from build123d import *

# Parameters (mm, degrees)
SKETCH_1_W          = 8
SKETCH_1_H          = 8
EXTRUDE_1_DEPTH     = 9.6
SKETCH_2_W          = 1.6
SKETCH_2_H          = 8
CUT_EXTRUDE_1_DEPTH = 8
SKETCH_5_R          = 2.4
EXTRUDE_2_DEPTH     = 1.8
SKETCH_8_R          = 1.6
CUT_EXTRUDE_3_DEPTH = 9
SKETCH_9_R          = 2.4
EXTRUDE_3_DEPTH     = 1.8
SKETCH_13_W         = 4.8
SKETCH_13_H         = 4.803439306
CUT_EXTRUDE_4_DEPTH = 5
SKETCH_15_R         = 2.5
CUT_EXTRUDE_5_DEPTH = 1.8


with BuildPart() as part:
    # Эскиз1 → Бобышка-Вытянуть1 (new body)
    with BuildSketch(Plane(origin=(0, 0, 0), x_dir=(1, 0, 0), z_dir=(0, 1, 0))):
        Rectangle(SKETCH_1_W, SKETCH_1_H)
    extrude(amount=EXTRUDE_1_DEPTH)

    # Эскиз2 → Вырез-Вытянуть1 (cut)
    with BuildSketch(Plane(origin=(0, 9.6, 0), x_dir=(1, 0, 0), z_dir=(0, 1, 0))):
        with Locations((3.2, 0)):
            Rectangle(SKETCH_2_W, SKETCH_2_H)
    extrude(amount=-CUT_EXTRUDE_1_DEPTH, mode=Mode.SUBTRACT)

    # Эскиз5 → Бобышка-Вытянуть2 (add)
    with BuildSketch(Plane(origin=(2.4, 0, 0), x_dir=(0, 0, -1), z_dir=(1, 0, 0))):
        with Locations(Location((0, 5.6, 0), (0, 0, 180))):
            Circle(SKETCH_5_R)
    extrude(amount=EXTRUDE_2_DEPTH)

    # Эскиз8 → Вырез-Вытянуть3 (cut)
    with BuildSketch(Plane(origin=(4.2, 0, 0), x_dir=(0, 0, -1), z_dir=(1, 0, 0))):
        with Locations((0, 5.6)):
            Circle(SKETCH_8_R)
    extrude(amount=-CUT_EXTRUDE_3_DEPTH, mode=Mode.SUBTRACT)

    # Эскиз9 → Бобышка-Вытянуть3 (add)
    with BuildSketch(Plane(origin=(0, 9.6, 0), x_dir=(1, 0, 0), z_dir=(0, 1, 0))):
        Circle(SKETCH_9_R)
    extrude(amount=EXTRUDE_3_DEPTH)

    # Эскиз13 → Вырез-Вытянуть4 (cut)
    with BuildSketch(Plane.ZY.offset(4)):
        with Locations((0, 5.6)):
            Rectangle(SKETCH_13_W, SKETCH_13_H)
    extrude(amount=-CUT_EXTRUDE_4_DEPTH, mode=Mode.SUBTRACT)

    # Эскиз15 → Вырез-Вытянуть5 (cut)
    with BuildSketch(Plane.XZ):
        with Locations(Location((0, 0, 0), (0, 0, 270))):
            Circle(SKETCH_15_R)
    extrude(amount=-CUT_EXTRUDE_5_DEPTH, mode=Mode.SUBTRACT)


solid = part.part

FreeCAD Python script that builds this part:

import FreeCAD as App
import Part
import Sketcher

V = App.Vector

doc = App.newDocument("Part")
params = doc.addObject("Spreadsheet::Sheet", "Params")
for row, (alias, value) in enumerate([
    ("sketch1_width", "8 mm"),
    ("pad1_length", "9.6 mm"),
    ("sketch2_height", "8 mm"),
    ("sketch2_width", "1.6 mm"),
    ("pocket1_length", "8 mm"),
    ("sketch3_diameter", "4.8 mm"),
    ("pad2_length", "1.8 mm"),
    ("sketch4_diameter", "3.2 mm"),
    ("pocket2_length", "9 mm"),
    ("sketch5_diameter", "4.8 mm"),
    ("pad3_length", "1.8 mm"),
    ("sketch6_height", "4.8 mm"),
    ("pocket3_length", "5 mm"),
    ("sketch7_diameter", "5 mm"),
    ("pocket4_length", "1.8 mm"),
], start=1):
    params.set(f"A{row}", alias)
    params.set(f"B{row}", "=" + value)
    params.setAlias(f"B{row}", alias)

body = doc.addObject("PartDesign::Body", "Body")

# Sketch on XZ plane
sketch1 = body.newObject("Sketcher::SketchObject", "Sketch")
sketch1.AttachmentSupport = (doc.getObject("XZ_Plane"), [""])
sketch1.MapMode = "FlatFace"
sketch1.addGeometry([
    Part.LineSegment(V(-4, -4, 0), V(-4, 4, 0)),
    Part.LineSegment(V(-4, 4, 0), V(4, 4, 0)),
    Part.LineSegment(V(4, 4, 0), V(4, -4, 0)),
    Part.LineSegment(V(4, -4, 0), V(-4, -4, 0)),
], False)
sketch1.addConstraint([
    Sketcher.Constraint("Coincident", 0, 2, 1, 1),
    Sketcher.Constraint("Coincident", 1, 2, 2, 1),
    Sketcher.Constraint("Coincident", 2, 2, 3, 1),
    Sketcher.Constraint("Coincident", 3, 2, 0, 1),
    Sketcher.Constraint("Vertical", 0),
    Sketcher.Constraint("Horizontal", 1),
    Sketcher.Constraint("Vertical", 2),
    Sketcher.Constraint("Horizontal", 3),
    Sketcher.Constraint("Symmetric", 0, 2, 2, 2, -1, 1),
    Sketcher.Constraint("Equal", 3, 0),
    Sketcher.Constraint("DistanceX", 1, 1, 1, 2, 8.0),
])
sketch1.setExpression("Constraints[10]", "Params.sketch1_width")
pad1 = body.newObject("PartDesign::Pad", "Pad")
pad1.Profile = sketch1
pad1.setExpression("Length", "Params.pad1_length")
pad1.Reversed = True

# Sketch on XZ plane
sketch2 = body.newObject("Sketcher::SketchObject", "Sketch001")
sketch2.AttachmentSupport = (doc.getObject("XZ_Plane"), [""])
sketch2.MapMode = "FlatFace"
sketch2.AttachmentOffset = App.Placement(V(0, 0, -9.6), App.Rotation())
sketch2.addGeometry([
    Part.LineSegment(V(2.4, -4, 0), V(2.4, 4, 0)),
    Part.LineSegment(V(2.4, 4, 0), V(4, 4, 0)),
    Part.LineSegment(V(4, 4, 0), V(4, -4, 0)),
    Part.LineSegment(V(4, -4, 0), V(2.4, -4, 0)),
], False)
sketch2.addConstraint([
    Sketcher.Constraint("Coincident", 0, 2, 1, 1),
    Sketcher.Constraint("Coincident", 1, 2, 2, 1),
    Sketcher.Constraint("Coincident", 2, 2, 3, 1),
    Sketcher.Constraint("Coincident", 3, 2, 0, 1),
    Sketcher.Constraint("Vertical", 0),
    Sketcher.Constraint("Horizontal", 1),
    Sketcher.Constraint("Vertical", 2),
    Sketcher.Constraint("Horizontal", 3),
    Sketcher.Constraint("DistanceY", 0, 1, 0, 2, 8.0),
    Sketcher.Constraint("DistanceX", 1, 1, 1, 2, 1.6),
    Sketcher.Constraint("DistanceY", -1, 1, 0, 2, 4.0),
    Sketcher.Constraint("DistanceX", -1, 1, 1, 2, 4.0),
])
sketch2.setExpression("Constraints[8]", "Params.sketch2_height")
sketch2.setExpression("Constraints[9]", "Params.sketch2_width")
pocket1 = body.newObject("PartDesign::Pocket", "Pocket")
pocket1.Profile = sketch2
pocket1.setExpression("Length", "Params.pocket1_length")
pocket1.Reversed = True

# Sketch on YZ plane
sketch3 = body.newObject("Sketcher::SketchObject", "Sketch002")
sketch3.AttachmentSupport = (doc.getObject("YZ_Plane"), [""])
sketch3.MapMode = "FlatFace"
sketch3.AttachmentOffset = App.Placement(V(0, 0, 2.4), App.Rotation())
sketch3.addGeometry(Part.Circle(V(5.6, 0, 0), V(0, 0, 1), 2.4), False)
sketch3.addConstraint([
    Sketcher.Constraint("PointOnObject", 0, 3, -1),
    Sketcher.Constraint("Diameter", 0, 4.8),
    Sketcher.Constraint("DistanceX", -1, 1, 0, 3, 5.6),
])
sketch3.setExpression("Constraints[1]", "Params.sketch3_diameter")
pad2 = body.newObject("PartDesign::Pad", "Pad001")
pad2.Profile = sketch3
pad2.setExpression("Length", "Params.pad2_length")

# Sketch on YZ plane
sketch4 = body.newObject("Sketcher::SketchObject", "Sketch003")
sketch4.AttachmentSupport = (doc.getObject("YZ_Plane"), [""])
sketch4.MapMode = "FlatFace"
sketch4.AttachmentOffset = App.Placement(V(0, 0, 4.2), App.Rotation())
sketch4.addGeometry(Part.Circle(V(5.6, 0, 0), V(0, 0, 1), 1.6), False)
sketch4.addConstraint([
    Sketcher.Constraint("PointOnObject", 0, 3, -1),
    Sketcher.Constraint("Diameter", 0, 3.2),
    Sketcher.Constraint("DistanceX", -1, 1, 0, 3, 5.6),
])
sketch4.setExpression("Constraints[1]", "Params.sketch4_diameter")
pocket2 = body.newObject("PartDesign::Pocket", "Pocket001")
pocket2.Profile = sketch4
pocket2.setExpression("Length", "Params.pocket2_length")

# Sketch on XZ plane
sketch5 = body.newObject("Sketcher::SketchObject", "Sketch004")
sketch5.AttachmentSupport = (doc.getObject("XZ_Plane"), [""])
sketch5.MapMode = "FlatFace"
sketch5.AttachmentOffset = App.Placement(V(0, 0, -9.6), App.Rotation())
sketch5.addGeometry(Part.Circle(V(0, 0, 0), V(0, 0, 1), 2.4), False)
sketch5.addConstraint([
    Sketcher.Constraint("Coincident", 0, 3, -1, 1),
    Sketcher.Constraint("Diameter", 0, 4.8),
])
sketch5.setExpression("Constraints[1]", "Params.sketch5_diameter")
pad3 = body.newObject("PartDesign::Pad", "Pad002")
pad3.Profile = sketch5
pad3.setExpression("Length", "Params.pad3_length")
pad3.Reversed = True

# Sketch on YZ plane
sketch6 = body.newObject("Sketcher::SketchObject", "Sketch005")
sketch6.AttachmentSupport = (doc.getObject("YZ_Plane"), [""])
sketch6.MapMode = "FlatFace"
sketch6.AttachmentOffset = App.Placement(V(0, 0, -4), App.Rotation())
sketch6.addGeometry([
    Part.LineSegment(V(8, -2.4, 0), V(3.2, -2.4, 0)),
    Part.LineSegment(V(3.2, -2.4, 0), V(3.2, 2.4, 0)),
    Part.LineSegment(V(3.2, 2.4, 0), V(8, 2.4, 0)),
    Part.LineSegment(V(8, 2.4, 0), V(8, -2.4, 0)),
], False)
sketch6.addConstraint([
    Sketcher.Constraint("Coincident", 0, 2, 1, 1),
    Sketcher.Constraint("Coincident", 1, 2, 2, 1),
    Sketcher.Constraint("Coincident", 2, 2, 3, 1),
    Sketcher.Constraint("Coincident", 3, 2, 0, 1),
    Sketcher.Constraint("Horizontal", 0),
    Sketcher.Constraint("Vertical", 1),
    Sketcher.Constraint("Horizontal", 2),
    Sketcher.Constraint("Vertical", 3),
    Sketcher.Constraint("DistanceY", 1, 1, 1, 2, 4.8),
    Sketcher.Constraint("DistanceY", 0, 2, -1, 1, 2.4),
    Sketcher.Constraint("DistanceX", 0, 2, 0, 1, 4.803439),
    Sketcher.Constraint("DistanceX", -1, 1, 0, 2, 3.19828),
])
sketch6.setExpression("Constraints[8]", "Params.sketch6_height")
pocket3 = body.newObject("PartDesign::Pocket", "Pocket002")
pocket3.Profile = sketch6
pocket3.setExpression("Length", "Params.pocket3_length")
pocket3.Reversed = True

# Sketch on XZ plane
sketch7 = body.newObject("Sketcher::SketchObject", "Sketch006")
sketch7.AttachmentSupport = (doc.getObject("XZ_Plane"), [""])
sketch7.MapMode = "FlatFace"
sketch7.addGeometry(Part.Circle(V(0, 0, 0), V(0, 0, 1), 2.5), False)
sketch7.addConstraint([
    Sketcher.Constraint("Coincident", 0, 3, -1, 1),
    Sketcher.Constraint("Diameter", 0, 5.0),
])
sketch7.setExpression("Constraints[1]", "Params.sketch7_diameter")
pocket4 = body.newObject("PartDesign::Pocket", "Pocket003")
pocket4.Profile = sketch7
pocket4.setExpression("Length", "Params.pocket4_length")

doc.recompute()
